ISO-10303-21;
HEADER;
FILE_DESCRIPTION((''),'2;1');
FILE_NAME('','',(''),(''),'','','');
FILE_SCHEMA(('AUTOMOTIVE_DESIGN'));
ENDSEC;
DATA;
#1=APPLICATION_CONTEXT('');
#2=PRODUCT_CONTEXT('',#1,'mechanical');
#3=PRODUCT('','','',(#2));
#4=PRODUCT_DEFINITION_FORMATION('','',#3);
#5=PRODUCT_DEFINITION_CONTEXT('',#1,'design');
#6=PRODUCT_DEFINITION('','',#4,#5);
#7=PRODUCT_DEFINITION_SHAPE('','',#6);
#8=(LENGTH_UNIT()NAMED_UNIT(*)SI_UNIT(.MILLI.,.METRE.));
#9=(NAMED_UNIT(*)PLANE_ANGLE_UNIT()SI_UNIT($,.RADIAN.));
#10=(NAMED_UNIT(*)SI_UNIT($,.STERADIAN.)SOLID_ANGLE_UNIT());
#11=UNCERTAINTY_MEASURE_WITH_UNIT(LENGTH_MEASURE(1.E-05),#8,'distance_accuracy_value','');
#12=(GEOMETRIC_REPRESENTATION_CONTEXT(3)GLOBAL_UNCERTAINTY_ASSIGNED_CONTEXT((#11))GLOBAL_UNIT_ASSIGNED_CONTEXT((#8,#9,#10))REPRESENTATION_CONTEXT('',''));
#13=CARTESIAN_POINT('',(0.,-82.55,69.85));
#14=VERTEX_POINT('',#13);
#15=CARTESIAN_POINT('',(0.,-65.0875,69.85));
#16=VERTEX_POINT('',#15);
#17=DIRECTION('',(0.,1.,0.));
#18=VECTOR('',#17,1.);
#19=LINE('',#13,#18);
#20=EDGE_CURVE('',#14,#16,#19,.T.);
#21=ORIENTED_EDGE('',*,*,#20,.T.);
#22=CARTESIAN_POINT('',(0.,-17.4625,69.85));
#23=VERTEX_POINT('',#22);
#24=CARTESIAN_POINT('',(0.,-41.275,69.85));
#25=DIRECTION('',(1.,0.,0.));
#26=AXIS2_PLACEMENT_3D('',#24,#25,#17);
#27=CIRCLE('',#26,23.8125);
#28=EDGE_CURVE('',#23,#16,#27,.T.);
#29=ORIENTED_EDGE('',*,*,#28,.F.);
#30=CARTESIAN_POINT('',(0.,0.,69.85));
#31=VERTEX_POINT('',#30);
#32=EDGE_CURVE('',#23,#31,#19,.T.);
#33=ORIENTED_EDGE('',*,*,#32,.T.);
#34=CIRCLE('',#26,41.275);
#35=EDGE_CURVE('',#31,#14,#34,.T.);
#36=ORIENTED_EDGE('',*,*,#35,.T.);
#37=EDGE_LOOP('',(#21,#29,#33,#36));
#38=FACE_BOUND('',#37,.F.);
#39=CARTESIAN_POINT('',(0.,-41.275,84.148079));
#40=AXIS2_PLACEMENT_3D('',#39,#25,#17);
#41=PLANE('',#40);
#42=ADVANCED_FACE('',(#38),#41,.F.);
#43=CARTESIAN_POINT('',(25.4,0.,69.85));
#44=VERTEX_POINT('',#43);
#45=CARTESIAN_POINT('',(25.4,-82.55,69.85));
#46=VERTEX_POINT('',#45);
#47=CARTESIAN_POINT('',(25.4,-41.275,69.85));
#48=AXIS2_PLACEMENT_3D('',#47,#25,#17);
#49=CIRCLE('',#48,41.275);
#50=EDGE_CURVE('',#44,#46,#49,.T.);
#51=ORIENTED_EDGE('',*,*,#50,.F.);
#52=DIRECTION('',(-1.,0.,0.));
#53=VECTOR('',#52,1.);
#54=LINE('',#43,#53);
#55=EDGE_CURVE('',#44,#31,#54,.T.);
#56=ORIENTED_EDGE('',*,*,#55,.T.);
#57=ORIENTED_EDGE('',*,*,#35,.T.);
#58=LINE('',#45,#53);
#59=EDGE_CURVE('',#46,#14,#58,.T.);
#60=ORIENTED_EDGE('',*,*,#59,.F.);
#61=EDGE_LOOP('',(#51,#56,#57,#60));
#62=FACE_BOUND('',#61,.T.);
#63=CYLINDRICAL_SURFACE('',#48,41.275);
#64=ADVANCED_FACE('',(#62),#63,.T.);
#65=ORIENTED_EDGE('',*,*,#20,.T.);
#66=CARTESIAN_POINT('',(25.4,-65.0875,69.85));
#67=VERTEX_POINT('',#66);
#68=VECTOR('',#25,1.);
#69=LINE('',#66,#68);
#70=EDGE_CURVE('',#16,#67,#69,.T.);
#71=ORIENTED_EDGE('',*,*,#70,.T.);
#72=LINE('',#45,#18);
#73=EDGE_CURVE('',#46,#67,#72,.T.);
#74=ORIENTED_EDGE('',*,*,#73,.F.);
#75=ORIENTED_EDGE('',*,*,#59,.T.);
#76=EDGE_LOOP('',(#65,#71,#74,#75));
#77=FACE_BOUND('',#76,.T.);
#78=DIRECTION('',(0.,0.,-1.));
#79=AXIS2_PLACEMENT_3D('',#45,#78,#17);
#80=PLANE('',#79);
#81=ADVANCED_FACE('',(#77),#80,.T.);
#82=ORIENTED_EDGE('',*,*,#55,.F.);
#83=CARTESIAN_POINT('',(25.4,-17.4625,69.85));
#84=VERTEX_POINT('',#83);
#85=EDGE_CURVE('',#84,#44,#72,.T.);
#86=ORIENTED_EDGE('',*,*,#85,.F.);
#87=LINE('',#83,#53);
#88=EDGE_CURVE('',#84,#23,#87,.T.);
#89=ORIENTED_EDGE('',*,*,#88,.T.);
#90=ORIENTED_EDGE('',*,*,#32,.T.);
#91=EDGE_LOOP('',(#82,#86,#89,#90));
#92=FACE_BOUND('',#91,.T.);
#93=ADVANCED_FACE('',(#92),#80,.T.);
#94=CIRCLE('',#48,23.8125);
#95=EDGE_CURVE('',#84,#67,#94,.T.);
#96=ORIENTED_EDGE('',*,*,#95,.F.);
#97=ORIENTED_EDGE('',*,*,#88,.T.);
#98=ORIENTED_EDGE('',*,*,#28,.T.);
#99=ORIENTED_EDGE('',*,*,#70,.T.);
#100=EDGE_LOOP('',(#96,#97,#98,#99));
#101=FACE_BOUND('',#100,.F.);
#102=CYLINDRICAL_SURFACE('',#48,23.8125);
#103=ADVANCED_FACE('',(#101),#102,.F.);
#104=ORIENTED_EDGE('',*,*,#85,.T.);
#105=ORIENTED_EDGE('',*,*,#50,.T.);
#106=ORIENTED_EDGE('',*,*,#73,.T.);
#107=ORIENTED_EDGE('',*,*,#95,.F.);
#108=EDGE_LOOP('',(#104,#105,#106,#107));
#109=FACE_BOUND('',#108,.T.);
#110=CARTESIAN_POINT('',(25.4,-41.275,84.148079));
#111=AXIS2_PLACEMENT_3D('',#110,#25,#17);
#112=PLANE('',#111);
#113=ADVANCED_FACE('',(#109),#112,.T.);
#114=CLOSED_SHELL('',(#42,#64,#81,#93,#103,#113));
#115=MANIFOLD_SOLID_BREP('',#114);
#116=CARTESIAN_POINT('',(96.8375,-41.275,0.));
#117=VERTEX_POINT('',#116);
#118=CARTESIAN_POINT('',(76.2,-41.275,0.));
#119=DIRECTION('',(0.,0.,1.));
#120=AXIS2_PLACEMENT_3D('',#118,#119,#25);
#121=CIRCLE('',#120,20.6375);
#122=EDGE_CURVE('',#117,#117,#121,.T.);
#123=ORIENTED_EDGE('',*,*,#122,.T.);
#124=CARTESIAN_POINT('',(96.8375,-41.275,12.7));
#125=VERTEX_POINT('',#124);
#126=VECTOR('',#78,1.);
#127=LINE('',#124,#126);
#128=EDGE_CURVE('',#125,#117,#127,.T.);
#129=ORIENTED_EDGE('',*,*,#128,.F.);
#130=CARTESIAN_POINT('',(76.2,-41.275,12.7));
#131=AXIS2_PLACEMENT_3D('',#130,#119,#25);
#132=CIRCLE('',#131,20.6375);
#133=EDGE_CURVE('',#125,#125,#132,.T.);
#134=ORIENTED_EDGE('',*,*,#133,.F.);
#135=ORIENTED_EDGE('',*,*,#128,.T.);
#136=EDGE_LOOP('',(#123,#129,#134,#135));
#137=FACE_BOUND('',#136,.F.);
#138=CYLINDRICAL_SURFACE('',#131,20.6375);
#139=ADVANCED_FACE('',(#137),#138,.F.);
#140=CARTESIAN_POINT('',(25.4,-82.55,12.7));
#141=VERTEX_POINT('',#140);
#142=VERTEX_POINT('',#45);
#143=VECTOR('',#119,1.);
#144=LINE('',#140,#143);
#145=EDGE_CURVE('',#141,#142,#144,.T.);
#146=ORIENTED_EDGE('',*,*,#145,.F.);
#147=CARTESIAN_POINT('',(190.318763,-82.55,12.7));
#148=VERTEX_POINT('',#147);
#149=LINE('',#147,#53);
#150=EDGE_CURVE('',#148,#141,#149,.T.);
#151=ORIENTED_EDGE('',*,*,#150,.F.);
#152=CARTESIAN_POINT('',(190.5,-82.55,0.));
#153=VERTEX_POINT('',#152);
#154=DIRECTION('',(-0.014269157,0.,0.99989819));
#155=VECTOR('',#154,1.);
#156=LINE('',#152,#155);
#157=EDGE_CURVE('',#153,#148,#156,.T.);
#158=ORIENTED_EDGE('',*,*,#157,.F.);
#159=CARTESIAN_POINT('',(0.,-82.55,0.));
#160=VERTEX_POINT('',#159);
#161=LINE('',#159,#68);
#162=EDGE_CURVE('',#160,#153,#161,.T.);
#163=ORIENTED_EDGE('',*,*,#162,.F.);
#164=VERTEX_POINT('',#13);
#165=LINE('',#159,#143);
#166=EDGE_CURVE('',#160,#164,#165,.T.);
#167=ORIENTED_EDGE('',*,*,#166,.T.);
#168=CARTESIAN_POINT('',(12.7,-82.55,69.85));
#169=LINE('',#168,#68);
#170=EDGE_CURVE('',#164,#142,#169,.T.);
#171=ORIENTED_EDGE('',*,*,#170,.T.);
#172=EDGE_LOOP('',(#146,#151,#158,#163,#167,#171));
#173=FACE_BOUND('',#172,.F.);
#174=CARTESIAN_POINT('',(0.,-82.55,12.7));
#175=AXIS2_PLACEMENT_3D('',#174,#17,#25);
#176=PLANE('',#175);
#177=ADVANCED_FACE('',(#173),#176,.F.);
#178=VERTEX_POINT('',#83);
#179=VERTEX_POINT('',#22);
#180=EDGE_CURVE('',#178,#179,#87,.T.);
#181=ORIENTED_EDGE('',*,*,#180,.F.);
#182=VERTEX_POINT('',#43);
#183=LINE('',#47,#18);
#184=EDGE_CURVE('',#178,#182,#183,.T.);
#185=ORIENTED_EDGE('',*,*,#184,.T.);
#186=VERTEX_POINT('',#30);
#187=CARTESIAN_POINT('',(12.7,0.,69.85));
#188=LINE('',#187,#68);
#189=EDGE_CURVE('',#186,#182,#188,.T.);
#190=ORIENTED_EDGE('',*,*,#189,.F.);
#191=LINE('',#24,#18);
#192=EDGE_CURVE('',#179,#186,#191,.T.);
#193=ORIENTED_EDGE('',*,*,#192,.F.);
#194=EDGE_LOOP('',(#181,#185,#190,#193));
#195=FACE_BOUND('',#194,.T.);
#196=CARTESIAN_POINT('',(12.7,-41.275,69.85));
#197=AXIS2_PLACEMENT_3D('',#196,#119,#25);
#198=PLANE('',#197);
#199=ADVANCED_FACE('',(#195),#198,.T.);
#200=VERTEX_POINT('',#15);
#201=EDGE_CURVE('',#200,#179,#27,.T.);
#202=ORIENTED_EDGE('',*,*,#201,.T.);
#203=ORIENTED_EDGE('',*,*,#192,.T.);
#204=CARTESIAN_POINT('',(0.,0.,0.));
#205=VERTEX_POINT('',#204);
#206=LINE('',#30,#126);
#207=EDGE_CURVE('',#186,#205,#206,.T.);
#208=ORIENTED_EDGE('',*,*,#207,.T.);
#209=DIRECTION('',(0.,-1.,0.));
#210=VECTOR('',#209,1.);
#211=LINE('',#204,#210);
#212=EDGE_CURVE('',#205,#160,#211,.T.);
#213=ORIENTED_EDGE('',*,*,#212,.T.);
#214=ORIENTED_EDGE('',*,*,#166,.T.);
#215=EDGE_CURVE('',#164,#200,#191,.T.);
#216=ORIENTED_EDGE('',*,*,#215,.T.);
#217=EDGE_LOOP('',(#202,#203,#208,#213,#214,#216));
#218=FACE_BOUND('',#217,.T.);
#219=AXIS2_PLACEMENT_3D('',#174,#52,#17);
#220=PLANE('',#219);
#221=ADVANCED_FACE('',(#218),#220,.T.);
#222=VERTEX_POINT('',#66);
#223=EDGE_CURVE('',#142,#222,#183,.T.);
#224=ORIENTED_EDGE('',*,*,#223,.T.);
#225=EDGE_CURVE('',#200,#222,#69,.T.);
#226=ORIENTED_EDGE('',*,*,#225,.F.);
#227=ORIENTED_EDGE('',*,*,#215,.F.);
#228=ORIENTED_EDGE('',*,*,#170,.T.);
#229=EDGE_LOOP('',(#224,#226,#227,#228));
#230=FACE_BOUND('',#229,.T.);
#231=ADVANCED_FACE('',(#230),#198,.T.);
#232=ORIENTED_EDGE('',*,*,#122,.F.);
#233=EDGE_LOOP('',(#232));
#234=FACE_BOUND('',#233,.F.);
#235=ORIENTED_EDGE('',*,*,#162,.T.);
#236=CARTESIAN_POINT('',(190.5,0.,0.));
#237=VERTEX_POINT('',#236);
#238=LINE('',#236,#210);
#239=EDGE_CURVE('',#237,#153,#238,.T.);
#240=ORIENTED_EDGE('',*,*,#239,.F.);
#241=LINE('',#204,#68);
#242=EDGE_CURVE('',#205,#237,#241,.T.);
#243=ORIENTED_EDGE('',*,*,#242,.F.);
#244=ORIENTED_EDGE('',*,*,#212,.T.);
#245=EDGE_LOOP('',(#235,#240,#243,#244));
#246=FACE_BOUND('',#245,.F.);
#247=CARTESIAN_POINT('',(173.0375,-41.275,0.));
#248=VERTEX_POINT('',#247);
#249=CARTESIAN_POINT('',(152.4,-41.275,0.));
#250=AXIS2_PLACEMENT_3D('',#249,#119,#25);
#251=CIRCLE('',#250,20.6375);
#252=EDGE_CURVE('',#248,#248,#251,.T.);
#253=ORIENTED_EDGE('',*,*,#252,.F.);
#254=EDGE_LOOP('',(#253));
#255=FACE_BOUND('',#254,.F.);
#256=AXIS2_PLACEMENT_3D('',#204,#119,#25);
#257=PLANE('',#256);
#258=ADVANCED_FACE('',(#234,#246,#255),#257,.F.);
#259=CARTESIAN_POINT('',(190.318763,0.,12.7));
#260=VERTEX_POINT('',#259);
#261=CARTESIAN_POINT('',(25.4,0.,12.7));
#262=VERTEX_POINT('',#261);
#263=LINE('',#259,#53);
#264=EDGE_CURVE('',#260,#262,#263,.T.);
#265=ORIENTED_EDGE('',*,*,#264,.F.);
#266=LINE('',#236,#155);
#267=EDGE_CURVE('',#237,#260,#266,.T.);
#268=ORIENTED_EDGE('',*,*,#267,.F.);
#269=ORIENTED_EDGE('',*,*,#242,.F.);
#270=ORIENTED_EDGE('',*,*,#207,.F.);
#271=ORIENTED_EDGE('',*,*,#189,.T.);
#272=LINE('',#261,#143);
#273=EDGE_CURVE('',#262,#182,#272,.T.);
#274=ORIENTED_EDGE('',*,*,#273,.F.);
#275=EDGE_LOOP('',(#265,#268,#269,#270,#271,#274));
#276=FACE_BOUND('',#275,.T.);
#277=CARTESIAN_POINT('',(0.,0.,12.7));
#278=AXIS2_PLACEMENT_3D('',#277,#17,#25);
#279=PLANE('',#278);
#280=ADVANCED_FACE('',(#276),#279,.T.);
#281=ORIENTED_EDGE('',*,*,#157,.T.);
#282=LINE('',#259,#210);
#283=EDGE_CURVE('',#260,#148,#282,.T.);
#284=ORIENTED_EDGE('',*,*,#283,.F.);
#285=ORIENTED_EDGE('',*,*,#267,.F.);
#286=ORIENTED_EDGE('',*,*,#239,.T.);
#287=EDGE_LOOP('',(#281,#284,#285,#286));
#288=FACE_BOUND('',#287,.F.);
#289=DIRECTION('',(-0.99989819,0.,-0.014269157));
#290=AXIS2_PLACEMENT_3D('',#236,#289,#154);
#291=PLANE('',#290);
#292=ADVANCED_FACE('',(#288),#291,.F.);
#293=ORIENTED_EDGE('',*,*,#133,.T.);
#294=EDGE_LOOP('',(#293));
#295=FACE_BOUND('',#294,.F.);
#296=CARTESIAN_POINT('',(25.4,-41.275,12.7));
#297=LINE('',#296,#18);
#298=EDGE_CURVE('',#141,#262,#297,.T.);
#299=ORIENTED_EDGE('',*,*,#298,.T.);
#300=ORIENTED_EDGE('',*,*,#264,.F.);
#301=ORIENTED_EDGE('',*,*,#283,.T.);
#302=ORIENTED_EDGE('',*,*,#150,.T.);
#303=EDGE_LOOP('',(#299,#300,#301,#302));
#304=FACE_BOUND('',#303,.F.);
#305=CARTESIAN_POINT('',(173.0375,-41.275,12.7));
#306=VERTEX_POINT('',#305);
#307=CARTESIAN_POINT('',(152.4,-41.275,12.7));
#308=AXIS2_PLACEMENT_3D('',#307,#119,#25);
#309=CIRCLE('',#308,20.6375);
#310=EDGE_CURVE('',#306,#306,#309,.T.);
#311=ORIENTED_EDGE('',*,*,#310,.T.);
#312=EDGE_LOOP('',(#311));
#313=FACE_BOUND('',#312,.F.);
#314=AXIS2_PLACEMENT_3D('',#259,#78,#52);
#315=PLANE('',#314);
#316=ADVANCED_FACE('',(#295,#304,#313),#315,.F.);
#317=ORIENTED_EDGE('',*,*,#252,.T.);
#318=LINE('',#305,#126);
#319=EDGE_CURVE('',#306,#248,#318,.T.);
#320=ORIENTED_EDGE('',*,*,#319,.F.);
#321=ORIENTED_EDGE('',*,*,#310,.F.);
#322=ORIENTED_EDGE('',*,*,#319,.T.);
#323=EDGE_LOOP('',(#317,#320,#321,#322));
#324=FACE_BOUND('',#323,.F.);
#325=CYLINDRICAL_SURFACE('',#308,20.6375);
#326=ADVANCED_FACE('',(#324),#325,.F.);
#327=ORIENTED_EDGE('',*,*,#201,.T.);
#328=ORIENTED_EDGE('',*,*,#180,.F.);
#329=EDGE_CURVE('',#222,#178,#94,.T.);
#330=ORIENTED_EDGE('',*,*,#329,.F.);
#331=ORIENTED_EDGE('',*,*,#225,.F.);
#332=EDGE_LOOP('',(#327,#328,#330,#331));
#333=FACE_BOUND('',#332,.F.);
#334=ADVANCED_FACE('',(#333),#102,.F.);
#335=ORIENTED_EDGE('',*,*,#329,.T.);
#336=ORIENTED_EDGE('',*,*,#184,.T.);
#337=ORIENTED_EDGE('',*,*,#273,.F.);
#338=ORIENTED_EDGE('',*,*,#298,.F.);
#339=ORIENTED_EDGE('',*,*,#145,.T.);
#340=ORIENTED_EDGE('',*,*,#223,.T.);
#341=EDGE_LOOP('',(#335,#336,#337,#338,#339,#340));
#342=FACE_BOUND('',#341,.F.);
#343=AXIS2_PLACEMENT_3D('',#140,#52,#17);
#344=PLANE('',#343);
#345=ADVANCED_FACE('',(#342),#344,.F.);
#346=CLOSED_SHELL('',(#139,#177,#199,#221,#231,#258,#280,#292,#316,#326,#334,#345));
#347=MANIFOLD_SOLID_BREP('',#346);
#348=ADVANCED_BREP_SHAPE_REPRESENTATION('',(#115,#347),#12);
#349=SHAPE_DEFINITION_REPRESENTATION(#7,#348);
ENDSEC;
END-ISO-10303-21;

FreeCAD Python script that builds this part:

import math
import FreeCAD as App
import Part
import Sketcher

V = App.Vector
Q = App.Units.Quantity

doc = App.newDocument("Part")
body = doc.addObject("PartDesign::Body", "Body")

# Sketch on XZ plane
sketch1 = body.newObject("Sketcher::SketchObject", "Sketch")
sketch1.AttachmentSupport = (doc.getObject("XZ_Plane"), [""])
sketch1.MapMode = "FlatFace"
sketch1.addGeometry(Part.LineSegment(V(0, 12.7, 0), V(0, 0, 0)), False)
sketch1.addGeometry(Part.LineSegment(V(0, 0, 0), V(190.5, 0, 0)), False)
sketch1.addGeometry(Part.LineSegment(V(190.5, 0, 0), V(190.318763, 12.7, 0)), False)
sketch1.addGeometry(Part.LineSegment(V(190.318763, 12.7, 0), V(0, 12.7, 0)), False)
sketch1.addConstraint(Sketcher.Constraint("Coincident", 0, 2, 1, 1))
sketch1.addConstraint(Sketcher.Constraint("Coincident", 1, 2, 2, 1))
sketch1.addConstraint(Sketcher.Constraint("Coincident", 2, 2, 3, 1))
sketch1.addConstraint(Sketcher.Constraint("Coincident", 3, 2, 0, 1))
sketch1.addConstraint(Sketcher.Constraint("Vertical", 0))
sketch1.addConstraint(Sketcher.Constraint("Horizontal", 1))
sketch1.addConstraint(Sketcher.Constraint("Horizontal", 3))
sketch1.addConstraint(Sketcher.Constraint("Coincident", 0, 2, -1, 1))
sketch1.addConstraint(Sketcher.Constraint("DistanceX", 1, 1, 1, 2, Q("7.5 in")))
sketch1.addConstraint(Sketcher.Constraint("DistanceY", 0, 2, 0, 1, Q("0.5 in")))
sketch1.addConstraint(Sketcher.Constraint("DistanceX", 3, 2, 3, 1, Q("190.318763 mm")))
pad1 = body.newObject("PartDesign::Pad", "Pad")
pad1.Profile = sketch1
pad1.Length = Q("3.25 in")

# Sketch on XY plane
sketch2 = body.newObject("Sketcher::SketchObject", "Sketch001")
sketch2.AttachmentSupport = (doc.getObject("XY_Plane"), [""])
sketch2.MapMode = "FlatFace"
sketch2.AttachmentOffset = App.Placement(V(0, 0, 0.5 * 25.4), App.Rotation())
sketch2.addGeometry(Part.LineSegment(V(0, 0, 0), V(0, -82.55, 0)), False)
sketch2.addGeometry(Part.LineSegment(V(0, -82.55, 0), V(25.4, -82.55, 0)), False)
sketch2.addGeometry(Part.LineSegment(V(25.4, -82.55, 0), V(25.4, 0, 0)), False)
sketch2.addGeometry(Part.LineSegment(V(25.4, 0, 0), V(0, 0, 0)), False)
sketch2.addConstraint(Sketcher.Constraint("Coincident", 0, 2, 1, 1))
sketch2.addConstraint(Sketcher.Constraint("Coincident", 1, 2, 2, 1))
sketch2.addConstraint(Sketcher.Constraint("Coincident", 2, 2, 3, 1))
sketch2.addConstraint(Sketcher.Constraint("Coincident", 3, 2, 0, 1))
sketch2.addConstraint(Sketcher.Constraint("Vertical", 0))
sketch2.addConstraint(Sketcher.Constraint("Horizontal", 1))
sketch2.addConstraint(Sketcher.Constraint("Vertical", 2))
sketch2.addConstraint(Sketcher.Constraint("Horizontal", 3))
sketch2.addConstraint(Sketcher.Constraint("Coincident", 3, 2, -1, 1))
sketch2.addConstraint(Sketcher.Constraint("DistanceX", 1, 1, 1, 2, Q("1 in")))
sketch2.addConstraint(Sketcher.Constraint("DistanceY", 0, 2, 0, 1, Q("3.25 in")))
pad2 = body.newObject("PartDesign::Pad", "Pad001")
pad2.Profile = sketch2
pad2.Length = Q("2.25 in")
body2 = doc.addObject("PartDesign::Body", "Body001")

# Sketch on YZ plane
sketch3 = body2.newObject("Sketcher::SketchObject", "Sketch002")
sketch3.AttachmentSupport = (doc.getObject("YZ_Plane001"), [""])
sketch3.MapMode = "FlatFace"
sketch3.AttachmentOffset = App.Placement(V(0, 0, 1 * 25.4), App.Rotation())
sketch3.addGeometry(Part.LineSegment(V(-82.55, 69.85, 0), V(0, 69.85, 0)), False)
sketch3.addGeometry(Part.ArcOfCircle(Part.Circle(V(-41.275, 69.85, 0), V(0, 0, 1), 41.275), math.radians(0), math.radians(180)), False)
sketch3.addConstraint(Sketcher.Constraint("Coincident", 0, 1, 1, 2))
sketch3.addConstraint(Sketcher.Constraint("Coincident", 1, 1, 0, 2))
sketch3.addConstraint(Sketcher.Constraint("Horizontal", 0))
sketch3.addConstraint(Sketcher.Constraint("PointOnObject", 1, 1, -2))
sketch3.addConstraint(Sketcher.Constraint("Horizontal", 1, 3, 0, 1))
sketch3.addConstraint(Sketcher.Constraint("Radius", 1, Q("1.625 in")))
sketch3.addConstraint(Sketcher.Constraint("DistanceY", -1, 1, 1, 3, Q("2.75 in")))
pad3 = body2.newObject("PartDesign::Pad", "Pad002")
pad3.Profile = sketch3
pad3.Length = Q("1 in")
pad3.Reversed = True
body3 = doc.addObject("PartDesign::Body", "Body002")

# Sketch on YZ plane
sketch4 = body3.newObject("Sketcher::SketchObject", "Sketch003")
sketch4.AttachmentSupport = (doc.getObject("YZ_Plane002"), [""])
sketch4.MapMode = "FlatFace"
sketch4.AttachmentOffset = App.Placement(V(0, 0, 1 * 25.4), App.Rotation())
sketch4.addGeometry(Part.Circle(V(-41.275, 69.85, 0), V(0, 0, 1), 23.8125), False)
sketch4.addConstraint(Sketcher.Constraint("Diameter", 0, Q("1.875 in")))
sketch4.addConstraint(Sketcher.Constraint("DistanceY", -1, 1, 0, 3, Q("2.75 in")))
sketch4.addConstraint(Sketcher.Constraint("DistanceX", 0, 3, -1, 1, Q("1.625 in")))
pad4 = body3.newObject("PartDesign::Pad", "Pad003")
pad4.Profile = sketch4
pad4.Length = 25.401
pad4.Reversed = True
doc.recompute()

body4 = doc.addObject("PartDesign::Body", "Body003")
body4.BaseFeature = body3
boolean = body.newObject("PartDesign::Boolean", "Boolean")
boolean.Type = "Cut"
boolean.addObjects([body4])
doc.recompute()

# Sketch on YZ plane
sketch5 = body.newObject("Sketcher::SketchObject", "Sketch004")
sketch5.AttachmentSupport = (doc.getObject("YZ_Plane"), [""])
sketch5.MapMode = "FlatFace"
sketch5.AttachmentOffset = App.Placement(V(0, 0, 1 * 25.4), App.Rotation())
sketch5.addGeometry(Part.Circle(V(-41.275, 69.85, 0), V(0, 0, 1), 23.8125), False)
sketch5.addConstraint(Sketcher.Constraint("Diameter", 0, Q("1.875 in")))
sketch5.addConstraint(Sketcher.Constraint("DistanceY", -1, 1, 0, 3, Q("2.75 in")))
sketch5.addConstraint(Sketcher.Constraint("DistanceX", 0, 3, -1, 1, Q("1.625 in")))
pocket1 = body.newObject("PartDesign::Pocket", "Pocket")
pocket1.Profile = sketch5
pocket1.Type = "ThroughAll"

# Sketch on XY plane
sketch6 = body.newObject("Sketcher::SketchObject", "Sketch005")
sketch6.AttachmentSupport = (doc.getObject("XY_Plane"), [""])
sketch6.MapMode = "FlatFace"
sketch6.AttachmentOffset = App.Placement(V(0, 0, 0.5 * 25.4), App.Rotation())
sketch6.addGeometry(Part.Circle(V(76.2, -41.275, 0), V(0, 0, 1), 20.6375), False)
sketch6.addGeometry(Part.Circle(V(152.4, -41.275, 0), V(0, 0, 1), 20.6375), False)
sketch6.addConstraint(Sketcher.Constraint("Equal", 0, 1))
sketch6.addConstraint(Sketcher.Constraint("Horizontal", 0, 3, 1, 3))
sketch6.addConstraint(Sketcher.Constraint("Diameter", 0, Q("1.625 in")))
sketch6.addConstraint(Sketcher.Constraint("DistanceX", -1, 1, 0, 3, Q("3 in")))
sketch6.addConstraint(Sketcher.Constraint("DistanceX", -1, 1, 1, 3, Q("6 in")))
sketch6.addConstraint(Sketcher.Constraint("DistanceY", 0, 3, -1, 1, Q("1.625 in")))
pocket2 = body.newObject("PartDesign::Pocket", "Pocket001")
pocket2.Profile = sketch6
pocket2.Length = Q("1 in")
doc.recompute()

boolean2 = body2.newObject("PartDesign::Boolean", "Boolean001")
boolean2.Type = "Cut"
boolean2.addObjects([body3])

doc.recompute()
